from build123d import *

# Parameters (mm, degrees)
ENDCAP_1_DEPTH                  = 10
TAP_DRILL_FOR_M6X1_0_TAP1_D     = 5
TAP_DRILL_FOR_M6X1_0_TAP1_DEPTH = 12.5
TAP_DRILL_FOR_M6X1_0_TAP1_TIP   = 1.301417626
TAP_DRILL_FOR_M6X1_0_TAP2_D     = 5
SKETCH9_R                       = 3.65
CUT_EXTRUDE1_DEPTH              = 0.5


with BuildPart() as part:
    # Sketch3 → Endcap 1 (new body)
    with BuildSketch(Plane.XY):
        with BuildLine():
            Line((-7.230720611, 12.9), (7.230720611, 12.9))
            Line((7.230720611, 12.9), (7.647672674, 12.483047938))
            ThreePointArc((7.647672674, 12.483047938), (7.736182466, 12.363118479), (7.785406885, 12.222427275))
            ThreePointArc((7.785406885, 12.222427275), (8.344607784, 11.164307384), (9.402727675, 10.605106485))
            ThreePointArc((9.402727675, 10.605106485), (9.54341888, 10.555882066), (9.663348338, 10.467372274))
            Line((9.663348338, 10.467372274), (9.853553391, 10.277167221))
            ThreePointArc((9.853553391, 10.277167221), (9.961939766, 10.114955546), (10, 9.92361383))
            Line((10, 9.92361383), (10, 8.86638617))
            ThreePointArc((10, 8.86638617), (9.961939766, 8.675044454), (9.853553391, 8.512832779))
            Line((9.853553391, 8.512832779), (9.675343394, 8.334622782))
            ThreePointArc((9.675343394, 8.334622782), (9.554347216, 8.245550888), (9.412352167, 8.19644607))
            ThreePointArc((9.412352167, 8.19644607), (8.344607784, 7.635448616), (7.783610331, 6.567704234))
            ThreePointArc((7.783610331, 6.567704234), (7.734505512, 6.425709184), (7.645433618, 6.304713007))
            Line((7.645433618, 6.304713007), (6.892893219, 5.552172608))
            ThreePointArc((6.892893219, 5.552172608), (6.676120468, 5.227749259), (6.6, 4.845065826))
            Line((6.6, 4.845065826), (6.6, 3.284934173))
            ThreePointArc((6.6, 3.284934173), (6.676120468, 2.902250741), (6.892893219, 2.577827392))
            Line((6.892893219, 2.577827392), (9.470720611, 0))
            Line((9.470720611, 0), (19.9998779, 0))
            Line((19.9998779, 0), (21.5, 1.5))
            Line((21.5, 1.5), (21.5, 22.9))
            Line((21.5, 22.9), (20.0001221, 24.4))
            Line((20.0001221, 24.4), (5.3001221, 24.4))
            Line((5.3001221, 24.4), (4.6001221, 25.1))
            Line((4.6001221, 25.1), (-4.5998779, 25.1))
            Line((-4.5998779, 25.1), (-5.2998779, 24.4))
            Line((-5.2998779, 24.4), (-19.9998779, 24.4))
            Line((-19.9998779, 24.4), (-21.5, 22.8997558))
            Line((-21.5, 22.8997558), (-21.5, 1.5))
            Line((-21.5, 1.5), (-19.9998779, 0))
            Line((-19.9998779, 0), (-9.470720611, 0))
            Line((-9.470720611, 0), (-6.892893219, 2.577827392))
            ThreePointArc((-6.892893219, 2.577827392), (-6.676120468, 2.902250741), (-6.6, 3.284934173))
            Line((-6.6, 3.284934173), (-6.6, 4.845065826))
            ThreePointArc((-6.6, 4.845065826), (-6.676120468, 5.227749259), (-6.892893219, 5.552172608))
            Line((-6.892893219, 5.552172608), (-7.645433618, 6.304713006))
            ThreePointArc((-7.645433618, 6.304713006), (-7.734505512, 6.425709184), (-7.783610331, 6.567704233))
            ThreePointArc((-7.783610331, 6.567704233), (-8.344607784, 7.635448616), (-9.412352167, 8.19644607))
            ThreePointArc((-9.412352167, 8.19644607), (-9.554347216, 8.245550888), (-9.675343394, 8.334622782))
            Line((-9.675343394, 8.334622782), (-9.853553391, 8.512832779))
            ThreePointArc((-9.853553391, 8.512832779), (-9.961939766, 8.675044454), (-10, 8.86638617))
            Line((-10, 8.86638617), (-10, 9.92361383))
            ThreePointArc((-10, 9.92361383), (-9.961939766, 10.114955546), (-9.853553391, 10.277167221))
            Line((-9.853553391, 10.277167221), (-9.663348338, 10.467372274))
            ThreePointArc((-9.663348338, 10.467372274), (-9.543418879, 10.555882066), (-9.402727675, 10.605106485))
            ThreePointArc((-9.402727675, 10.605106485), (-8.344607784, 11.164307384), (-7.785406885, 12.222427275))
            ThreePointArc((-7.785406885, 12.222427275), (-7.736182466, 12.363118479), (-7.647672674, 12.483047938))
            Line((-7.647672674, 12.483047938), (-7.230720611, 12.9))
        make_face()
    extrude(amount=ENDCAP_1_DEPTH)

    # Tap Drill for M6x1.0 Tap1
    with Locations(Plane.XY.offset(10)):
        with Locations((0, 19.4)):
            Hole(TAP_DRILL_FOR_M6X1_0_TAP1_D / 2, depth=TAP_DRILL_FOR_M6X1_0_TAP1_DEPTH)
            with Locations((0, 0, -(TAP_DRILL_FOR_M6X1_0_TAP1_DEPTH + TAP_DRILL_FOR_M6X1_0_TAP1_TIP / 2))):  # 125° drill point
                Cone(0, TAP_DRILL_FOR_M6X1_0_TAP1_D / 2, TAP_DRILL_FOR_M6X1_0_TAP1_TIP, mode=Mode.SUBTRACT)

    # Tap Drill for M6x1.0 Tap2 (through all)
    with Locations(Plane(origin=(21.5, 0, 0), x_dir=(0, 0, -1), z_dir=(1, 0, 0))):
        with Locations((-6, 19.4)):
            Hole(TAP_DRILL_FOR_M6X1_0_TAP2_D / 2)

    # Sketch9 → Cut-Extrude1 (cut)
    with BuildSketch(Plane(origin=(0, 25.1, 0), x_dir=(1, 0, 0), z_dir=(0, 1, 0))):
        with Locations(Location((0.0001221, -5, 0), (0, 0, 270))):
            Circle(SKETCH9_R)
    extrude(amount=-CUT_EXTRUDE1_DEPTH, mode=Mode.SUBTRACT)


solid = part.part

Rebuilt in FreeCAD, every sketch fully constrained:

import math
import FreeCAD as App
import Part
import Sketcher
Q = App.Units.Quantity

doc = App.newDocument("Part")
body = doc.addObject("PartDesign::Body", "Body")

sketch1 = body.newObject("Sketcher::SketchObject", "Sketch")
sketch1.AttachmentSupport = (doc.getObject("XY_Plane"), [""])
sketch1.MapMode = "FlatFace"
sketch1.addGeometry(Part.LineSegment(App.Vector(-7.23, 12.9, 0), App.Vector(7.23, 12.9, 0)), False)
sketch1.addGeometry(Part.LineSegment(App.Vector(7.23, 12.9, 0), App.Vector(7.65, 12.48, 0)), False)
sketch1.addGeometry(Part.ArcOfCircle(Part.Circle(App.Vector(7.29, 12.13, 0), App.Vector(0, 0, 1), 0.5), math.radians(11), math.radians(45)), False)
sketch1.addGeometry(Part.ArcOfCircle(Part.Circle(App.Vector(9.78, 12.6, 0), App.Vector(0, 0, 1), 2.03), math.radians(-169), math.radians(-101)), False)
sketch1.addGeometry(Part.ArcOfCircle(Part.Circle(App.Vector(9.31, 10.11, 0), App.Vector(0, 0, 1), 0.5), math.radians(45), math.radians(79)), False)
sketch1.addGeometry(Part.LineSegment(App.Vector(9.66, 10.47, 0), App.Vector(9.85, 10.28, 0)), False)
sketch1.addGeometry(Part.ArcOfCircle(Part.Circle(App.Vector(9.5, 9.92, 0), App.Vector(0, 0, 1), 0.5), math.radians(0), math.radians(45)), False)
sketch1.addGeometry(Part.LineSegment(App.Vector(10, 9.92, 0), App.Vector(10, 8.87, 0)), False)
sketch1.addGeometry(Part.ArcOfCircle(Part.Circle(App.Vector(9.5, 8.87, 0), App.Vector(0, 0, 1), 0.5), math.radians(-45), math.radians(0)), False)
sketch1.addGeometry(Part.LineSegment(App.Vector(9.85, 8.51, 0), App.Vector(9.68, 8.33, 0)), False)
sketch1.addGeometry(Part.ArcOfCircle(Part.Circle(App.Vector(9.32, 8.69, 0), App.Vector(0, 0, 1), 0.5), math.radians(-80), math.radians(-45)), False)
sketch1.addGeometry(Part.ArcOfCircle(Part.Circle(App.Vector(9.78, 6.2, 0), App.Vector(0, 0, 1), 2.03), math.radians(100), math.radians(170)), False)
sketch1.addGeometry(Part.ArcOfCircle(Part.Circle(App.Vector(7.29, 6.66, 0), App.Vector(0, 0, 1), 0.5), math.radians(-45), math.radians(-10)), False)
sketch1.addGeometry(Part.LineSegment(App.Vector(7.65, 6.3, 0), App.Vector(6.89, 5.55, 0)), False)
sketch1.addGeometry(Part.ArcOfCircle(Part.Circle(App.Vector(7.6, 4.85, 0), App.Vector(0, 0, 1), 1), math.radians(135), math.radians(180)), False)
sketch1.addGeometry(Part.LineSegment(App.Vector(6.6, 4.85, 0), App.Vector(6.6, 3.28, 0)), False)
sketch1.addGeometry(Part.ArcOfCircle(Part.Circle(App.Vector(7.6, 3.28, 0), App.Vector(0, 0, 1), 1), math.radians(-180), math.radians(-135)), False)
sketch1.addGeometry(Part.LineSegment(App.Vector(6.89, 2.58, 0), App.Vector(9.47, 0, 0)), False)
sketch1.addGeometry(Part.LineSegment(App.Vector(9.47, 0, 0), App.Vector(20, 0, 0)), False)
sketch1.addGeometry(Part.LineSegment(App.Vector(20, 0, 0), App.Vector(21.5, 1.5, 0)), False)
sketch1.addGeometry(Part.LineSegment(App.Vector(21.5, 1.5, 0), App.Vector(21.5, 22.9, 0)), False)
sketch1.addGeometry(Part.LineSegment(App.Vector(21.5, 22.9, 0), App.Vector(20, 24.4, 0)), False)
sketch1.addGeometry(Part.LineSegment(App.Vector(20, 24.4, 0), App.Vector(5.3, 24.4, 0)), False)
sketch1.addGeometry(Part.LineSegment(App.Vector(5.3, 24.4, 0), App.Vector(4.6, 25.1, 0)), False)
sketch1.addGeometry(Part.LineSegment(App.Vector(4.6, 25.1, 0), App.Vector(-4.6, 25.1, 0)), False)
sketch1.addGeometry(Part.LineSegment(App.Vector(-4.6, 25.1, 0), App.Vector(-5.3, 24.4, 0)), False)
sketch1.addGeometry(Part.LineSegment(App.Vector(-5.3, 24.4, 0), App.Vector(-20, 24.4, 0)), False)
sketch1.addGeometry(Part.LineSegment(App.Vector(-20, 24.4, 0), App.Vector(-21.5, 22.9, 0)), False)
sketch1.addGeometry(Part.LineSegment(App.Vector(-21.5, 22.9, 0), App.Vector(-21.5, 1.5, 0)), False)
sketch1.addGeometry(Part.LineSegment(App.Vector(-21.5, 1.5, 0), App.Vector(-20, 0, 0)), False)
sketch1.addGeometry(Part.LineSegment(App.Vector(-20, 0, 0), App.Vector(-9.47, 0, 0)), False)
sketch1.addGeometry(Part.LineSegment(App.Vector(-9.47, 0, 0), App.Vector(-6.89, 2.58, 0)), False)
sketch1.addGeometry(Part.ArcOfCircle(Part.Circle(App.Vector(-7.6, 3.28, 0), App.Vector(0, 0, 1), 1), math.radians(-45), math.radians(0)), False)
sketch1.addGeometry(Part.LineSegment(App.Vector(-6.6, 3.28, 0), App.Vector(-6.6, 4.85, 0)), False)
sketch1.addGeometry(Part.ArcOfCircle(Part.Circle(App.Vector(-7.6, 4.85, 0), App.Vector(0, 0, 1), 1), math.radians(0), math.radians(45)), False)
sketch1.addGeometry(Part.LineSegment(App.Vector(-6.89, 5.55, 0), App.Vector(-7.65, 6.3, 0)), False)
sketch1.addGeometry(Part.ArcOfCircle(Part.Circle(App.Vector(-7.29, 6.66, 0), App.Vector(0, 0, 1), 0.5), math.radians(-170), math.radians(-135)), False)
sketch1.addGeometry(Part.ArcOfCircle(Part.Circle(App.Vector(-9.78, 6.2, 0), App.Vector(0, 0, 1), 2.03), math.radians(10), math.radians(80)), False)
sketch1.addGeometry(Part.ArcOfCircle(Part.Circle(App.Vector(-9.32, 8.69, 0), App.Vector(0, 0, 1), 0.5), math.radians(-135), math.radians(-100)), False)
sketch1.addGeometry(Part.LineSegment(App.Vector(-9.68, 8.33, 0), App.Vector(-9.85, 8.51, 0)), False)
sketch1.addGeometry(Part.ArcOfCircle(Part.Circle(App.Vector(-9.5, 8.87, 0), App.Vector(0, 0, 1), 0.5), math.radians(-180), math.radians(-135)), False)
sketch1.addGeometry(Part.LineSegment(App.Vector(-10, 8.87, 0), App.Vector(-10, 9.92, 0)), False)
sketch1.addGeometry(Part.ArcOfCircle(Part.Circle(App.Vector(-9.5, 9.92, 0), App.Vector(0, 0, 1), 0.5), math.radians(135), math.radians(180)), False)
sketch1.addGeometry(Part.LineSegment(App.Vector(-9.85, 10.28, 0), App.Vector(-9.66, 10.47, 0)), False)
sketch1.addGeometry(Part.ArcOfCircle(Part.Circle(App.Vector(-9.31, 10.11, 0), App.Vector(0, 0, 1), 0.5), math.radians(101), math.radians(135)), False)
sketch1.addGeometry(Part.ArcOfCircle(Part.Circle(App.Vector(-9.78, 12.6, 0), App.Vector(0, 0, 1), 2.03), math.radians(-79), math.radians(-11)), False)
sketch1.addGeometry(Part.ArcOfCircle(Part.Circle(App.Vector(-7.29, 12.13, 0), App.Vector(0, 0, 1), 0.5), math.radians(135), math.radians(169)), False)
sketch1.addGeometry(Part.LineSegment(App.Vector(-7.65, 12.48, 0), App.Vector(-7.23, 12.9, 0)), False)
sketch1.addConstraint(Sketcher.Constraint("Coincident", 0, 2, 1, 1))
sketch1.addConstraint(Sketcher.Constraint("Tangent", 1, 2, 2, 2))
sketch1.addConstraint(Sketcher.Constraint("Tangent", 2, 1, 3, 1))
sketch1.addConstraint(Sketcher.Constraint("Tangent", 3, 2, 4, 2))
sketch1.addConstraint(Sketcher.Constraint("Tangent", 4, 1, 5, 1))
sketch1.addConstraint(Sketcher.Constraint("Tangent", 5, 2, 6, 2))
sketch1.addConstraint(Sketcher.Constraint("Tangent", 6, 1, 7, 1))
sketch1.addConstraint(Sketcher.Constraint("Tangent", 7, 2, 8, 2))
sketch1.addConstraint(Sketcher.Constraint("Tangent", 8, 1, 9, 1))
sketch1.addConstraint(Sketcher.Constraint("Tangent", 9, 2, 10, 2))
sketch1.addConstraint(Sketcher.Constraint("Tangent", 10, 1, 11, 1))
sketch1.addConstraint(Sketcher.Constraint("Tangent", 11, 2, 12, 2))
sketch1.addConstraint(Sketcher.Constraint("Tangent", 12, 1, 13, 1))
sketch1.addConstraint(Sketcher.Constraint("Tangent", 13, 2, 14, 1))
sketch1.addConstraint(Sketcher.Constraint("Tangent", 14, 2, 15, 1))
sketch1.addConstraint(Sketcher.Constraint("Tangent", 15, 2, 16, 1))
sketch1.addConstraint(Sketcher.Constraint("Tangent", 16, 2, 17, 1))
sketch1.addConstraint(Sketcher.Constraint("Coincident", 17, 2, 18, 1))
sketch1.addConstraint(Sketcher.Constraint("Coincident", 18, 2, 19, 1))
sketch1.addConstraint(Sketcher.Constraint("Coincident", 19, 2, 20, 1))
sketch1.addConstraint(Sketcher.Constraint("Coincident", 20, 2, 21, 1))
sketch1.addConstraint(Sketcher.Constraint("Coincident", 21, 2, 22, 1))
sketch1.addConstraint(Sketcher.Constraint("Coincident", 22, 2, 23, 1))
sketch1.addConstraint(Sketcher.Constraint("Coincident", 23, 2, 24, 1))
sketch1.addConstraint(Sketcher.Constraint("Coincident", 24, 2, 25, 1))
sketch1.addConstraint(Sketcher.Constraint("Coincident", 25, 2, 26, 1))
sketch1.addConstraint(Sketcher.Constraint("Coincident", 26, 2, 27, 1))
sketch1.addConstraint(Sketcher.Constraint("Coincident", 27, 2, 28, 1))
sketch1.addConstraint(Sketcher.Constraint("Coincident", 28, 2, 29, 1))
sketch1.addConstraint(Sketcher.Constraint("Coincident", 29, 2, 30, 1))
sketch1.addConstraint(Sketcher.Constraint("Coincident", 30, 2, 31, 1))
sketch1.addConstraint(Sketcher.Constraint("Tangent", 31, 2, 32, 1))
sketch1.addConstraint(Sketcher.Constraint("Tangent", 32, 2, 33, 1))
sketch1.addConstraint(Sketcher.Constraint("Tangent", 33, 2, 34, 1))
sketch1.addConstraint(Sketcher.Constraint("Tangent", 34, 2, 35, 1))
sketch1.addConstraint(Sketcher.Constraint("Tangent", 35, 2, 36, 2))
sketch1.addConstraint(Sketcher.Constraint("Tangent", 36, 1, 37, 1))
sketch1.addConstraint(Sketcher.Constraint("Tangent", 37, 2, 38, 2))
sketch1.addConstraint(Sketcher.Constraint("Tangent", 38, 1, 39, 1))
sketch1.addConstraint(Sketcher.Constraint("Tangent", 39, 2, 40, 2))
sketch1.addConstraint(Sketcher.Constraint("Tangent", 40, 1, 41, 1))
sketch1.addConstraint(Sketcher.Constraint("Tangent", 41, 2, 42, 2))
sketch1.addConstraint(Sketcher.Constraint("Tangent", 42, 1, 43, 1))
sketch1.addConstraint(Sketcher.Constraint("Tangent", 43, 2, 44, 2))
sketch1.addConstraint(Sketcher.Constraint("Tangent", 44, 1, 45, 1))
sketch1.addConstraint(Sketcher.Constraint("Tangent", 45, 2, 46, 2))
sketch1.addConstraint(Sketcher.Constraint("Tangent", 46, 1, 47, 1))
sketch1.addConstraint(Sketcher.Constraint("Coincident", 47, 2, 0, 1))
sketch1.addConstraint(Sketcher.Constraint("Horizontal", 0))
sketch1.addConstraint(Sketcher.Constraint("Vertical", 7))
sketch1.addConstraint(Sketcher.Constraint("Vertical", 15))
sketch1.addConstraint(Sketcher.Constraint("Horizontal", 18))
sketch1.addConstraint(Sketcher.Constraint("Vertical", 20))
sketch1.addConstraint(Sketcher.Constraint("Horizontal", 22))
sketch1.addConstraint(Sketcher.Constraint("Horizontal", 24))
sketch1.addConstraint(Sketcher.Constraint("Horizontal", 26))
sketch1.addConstraint(Sketcher.Constraint("Vertical", 28))
sketch1.addConstraint(Sketcher.Constraint("Horizontal", 30))
sketch1.addConstraint(Sketcher.Constraint("Vertical", 33))
sketch1.addConstraint(Sketcher.Constraint("Vertical", 41))
sketch1.addConstraint(Sketcher.Constraint("Equal", 2, 4))
sketch1.addConstraint(Sketcher.Constraint("Equal", 4, 6))
sketch1.addConstraint(Sketcher.Constraint("Equal", 6, 8))
sketch1.addConstraint(Sketcher.Constraint("Equal", 8, 10))
sketch1.addConstraint(Sketcher.Constraint("Equal", 3, 11))
sketch1.addConstraint(Sketcher.Constraint("Equal", 10, 12))
sketch1.addConstraint(Sketcher.Constraint("Equal", 14, 16))
sketch1.addConstraint(Sketcher.Constraint("Equal", 16, 32))
sketch1.addConstraint(Sketcher.Constraint("Equal", 32, 34))
sketch1.addConstraint(Sketcher.Constraint("Equal", 12, 36))
sketch1.addConstraint(Sketcher.Constraint("Equal", 11, 37))
sketch1.addConstraint(Sketcher.Constraint("Equal", 36, 38))
sketch1.addConstraint(Sketcher.Constraint("Equal", 38, 40))
sketch1.addConstraint(Sketcher.Constraint("Equal", 40, 42))
sketch1.addConstraint(Sketcher.Constraint("Equal", 42, 44))
sketch1.addConstraint(Sketcher.Constraint("Equal", 37, 45))
sketch1.addConstraint(Sketcher.Constraint("Equal", 44, 46))
sketch1.addConstraint(Sketcher.Constraint("Symmetric", 18, 2, 29, 2, -1, 1))
sketch1.addConstraint(Sketcher.Constraint("Symmetric", 16, 3, 32, 3, -2))
sketch1.addConstraint(Sketcher.Constraint("Symmetric", 12, 3, 36, 3, -2))
sketch1.addConstraint(Sketcher.Constraint("Symmetric", 10, 3, 38, 3, -2))
sketch1.addConstraint(Sketcher.Constraint("Symmetric", 8, 3, 40, 3, -2))
sketch1.addConstraint(Sketcher.Constraint("Symmetric", 4, 3, 44, 3, -2))
sketch1.addConstraint(Sketcher.Constraint("Symmetric", 2, 3, 46, 3, -2))
sketch1.addConstraint(Sketcher.Constraint("Symmetric", 19, 2, 28, 2, -2))
sketch1.addConstraint(Sketcher.Constraint("Symmetric", 17, 2, 30, 2, -2))
sketch1.addConstraint(Sketcher.Constraint("Parallel", 1, 5))
sketch1.addConstraint(Sketcher.Constraint("Perpendicular", 5, 9))
sketch1.addConstraint(Sketcher.Constraint("Parallel", 9, 13))
sketch1.addConstraint(Sketcher.Constraint("Perpendicular", 13, 17))
sketch1.addConstraint(Sketcher.Constraint("Perpendicular", 19, 21))
sketch1.addConstraint(Sketcher.Constraint("Parallel", 17, 23))
sketch1.addConstraint(Sketcher.Constraint("Perpendicular", 23, 25))
sketch1.addConstraint(Sketcher.Constraint("Perpendicular", 27, 29))
sketch1.addConstraint(Sketcher.Constraint("Parallel", 25, 31))
sketch1.addConstraint(Sketcher.Constraint("Perpendicular", 31, 35))
sketch1.addConstraint(Sketcher.Constraint("Perpendicular", 39, 43))
sketch1.addConstraint(Sketcher.Constraint("Parallel", 43, 47))
sketch1.addConstraint(Sketcher.Constraint("Horizontal", 22, 2, 25, 2))
sketch1.addConstraint(Sketcher.Constraint("Vertical", 3, 3, 11, 3))
sketch1.addConstraint(Sketcher.Constraint("Vertical", 26, 2, 29, 2))
sketch1.addConstraint(Sketcher.Constraint("Equal", 22, 26))
sketch1.addConstraint(Sketcher.Constraint("Radius", 14, Q("1 mm")))
sketch1.addConstraint(Sketcher.Constraint("Radius", 2, Q("0.5 mm")))
sketch1.addConstraint(Sketcher.Constraint("Radius", 3, Q("2.03 mm")))
sketch1.addConstraint(Sketcher.Constraint("DistanceX", 22, 2, 22, 1, Q("14.7 mm")))
sketch1.addConstraint(Sketcher.Constraint("DistanceX", 24, 2, 24, 1, Q("9.2 mm")))
sketch1.addConstraint(Sketcher.Constraint("DistanceY", 20, 1, 20, 2, Q("21.4 mm")))
sketch1.addConstraint(Sketcher.Constraint("DistanceX", -1, 1, 6, 1, Q("10 mm")))
sketch1.addConstraint(Sketcher.Constraint("DistanceX", -1, 1, 14, 3, Q("7.6 mm")))
sketch1.addConstraint(Sketcher.Constraint("DistanceY", -1, 1, 0, 2, Q("12.9 mm")))
sketch1.addConstraint(Sketcher.Constraint("DistanceX", -1, 1, 19, 2, Q("21.5 mm")))
sketch1.addConstraint(Sketcher.Constraint("DistanceY", -1, 1, 19, 2, Q("1.5 mm")))
sketch1.addConstraint(Sketcher.Constraint("DistanceY", -1, 1, 21, 2, Q("24.4 mm")))
sketch1.addConstraint(Sketcher.Constraint("Distance", 17, Q("3.645598 mm")))
sketch1.addConstraint(Sketcher.Constraint("DistanceX", 0, 1, 0, 2, Q("14.461441 mm")))
sketch1.addConstraint(Sketcher.Constraint("DistanceY", 15, 2, 15, 1, Q("1.560132 mm")))
sketch1.addConstraint(Sketcher.Constraint("Distance", 1, Q("0.589659 mm")))
sketch1.addConstraint(Sketcher.Constraint("Distance", 5, Q("0.268991 mm")))
sketch1.addConstraint(Sketcher.Constraint("Distance", 27, Q("2.121579 mm")))
sketch1.addConstraint(Sketcher.Constraint("DistanceY", 7, 2, 7, 1, Q("1.057228 mm")))
sketch1.addConstraint(Sketcher.Constraint("DistanceY", -1, 1, 4, 3, Q("10.113819 mm")))
sketch1.addConstraint(Sketcher.Constraint("DistanceX", -1, 1, 10, 3, Q("9.32179 mm")))
pad1 = body.newObject("PartDesign::Pad", "Pad")
pad1.Profile = sketch1
pad1.Length = 10

sketch2 = body.newObject("Sketcher::SketchObject", "Sketch001")
sketch2.AttachmentSupport = (doc.getObject("XY_Plane"), [""])
sketch2.MapMode = "FlatFace"
sketch2.AttachmentOffset = App.Placement(App.Vector(0, 0, 10), App.Rotation())
sketch2.addGeometry(Part.Circle(App.Vector(0, 19.4, 0), App.Vector(0, 0, 1), 2.5), False)
sketch2.addConstraint(Sketcher.Constraint("PointOnObject", 0, 3, -2))
sketch2.addConstraint(Sketcher.Constraint("Diameter", 0, Q("5 mm")))
sketch2.addConstraint(Sketcher.Constraint("DistanceY", -1, 1, 0, 3, Q("19.4 mm")))
doc.recompute()
hole = body.newObject("PartDesign::Hole", "Hole")
hole.Profile = sketch2
hole.ThreadType = "None"
hole.Diameter = 5
hole.DepthType = "Dimension"
hole.Depth = 12.5
hole.DrillPoint = "Angled"
hole.DrillPointAngle = 125

sketch3 = body.newObject("Sketcher::SketchObject", "Sketch002")
sketch3.AttachmentSupport = (doc.getObject("YZ_Plane"), [""])
sketch3.MapMode = "FlatFace"
sketch3.AttachmentOffset = App.Placement(App.Vector(0, 0, 21.5), App.Rotation())
sketch3.addGeometry(Part.Circle(App.Vector(19.4, 6, 0), App.Vector(0, 0, 1), 2.5), False)
sketch3.addConstraint(Sketcher.Constraint("Diameter", 0, Q("5 mm")))
sketch3.addConstraint(Sketcher.Constraint("DistanceY", -1, 1, 0, 3, Q("6 mm")))
sketch3.addConstraint(Sketcher.Constraint("DistanceX", -1, 1, 0, 3, Q("19.4 mm")))
doc.recompute()
hole2 = body.newObject("PartDesign::Hole", "Hole001")
hole2.Profile = sketch3
hole2.ThreadType = "None"
hole2.Diameter = 5
hole2.DepthType = "ThroughAll"

sketch4 = body.newObject("Sketcher::SketchObject", "Sketch003")
sketch4.AttachmentSupport = (doc.getObject("XZ_Plane"), [""])
sketch4.MapMode = "FlatFace"
sketch4.AttachmentOffset = App.Placement(App.Vector(0, 0, -25.1), App.Rotation())
sketch4.addGeometry(Part.Circle(App.Vector(0, 5, 0), App.Vector(0, 0, 1), 3.6), False)
sketch4.addConstraint(Sketcher.Constraint("Diameter", 0, Q("7.3 mm")))
sketch4.addConstraint(Sketcher.Constraint("DistanceY", -1, 1, 0, 3, Q("5 mm")))
sketch4.addConstraint(Sketcher.Constraint("DistanceX", -1, 1, 0, 3, Q("0.000122 mm")))
pocket1 = body.newObject("PartDesign::Pocket", "Pocket")
pocket1.Profile = sketch4
pocket1.Length = 0.5
pocket1.Reversed = True

doc.recompute()
